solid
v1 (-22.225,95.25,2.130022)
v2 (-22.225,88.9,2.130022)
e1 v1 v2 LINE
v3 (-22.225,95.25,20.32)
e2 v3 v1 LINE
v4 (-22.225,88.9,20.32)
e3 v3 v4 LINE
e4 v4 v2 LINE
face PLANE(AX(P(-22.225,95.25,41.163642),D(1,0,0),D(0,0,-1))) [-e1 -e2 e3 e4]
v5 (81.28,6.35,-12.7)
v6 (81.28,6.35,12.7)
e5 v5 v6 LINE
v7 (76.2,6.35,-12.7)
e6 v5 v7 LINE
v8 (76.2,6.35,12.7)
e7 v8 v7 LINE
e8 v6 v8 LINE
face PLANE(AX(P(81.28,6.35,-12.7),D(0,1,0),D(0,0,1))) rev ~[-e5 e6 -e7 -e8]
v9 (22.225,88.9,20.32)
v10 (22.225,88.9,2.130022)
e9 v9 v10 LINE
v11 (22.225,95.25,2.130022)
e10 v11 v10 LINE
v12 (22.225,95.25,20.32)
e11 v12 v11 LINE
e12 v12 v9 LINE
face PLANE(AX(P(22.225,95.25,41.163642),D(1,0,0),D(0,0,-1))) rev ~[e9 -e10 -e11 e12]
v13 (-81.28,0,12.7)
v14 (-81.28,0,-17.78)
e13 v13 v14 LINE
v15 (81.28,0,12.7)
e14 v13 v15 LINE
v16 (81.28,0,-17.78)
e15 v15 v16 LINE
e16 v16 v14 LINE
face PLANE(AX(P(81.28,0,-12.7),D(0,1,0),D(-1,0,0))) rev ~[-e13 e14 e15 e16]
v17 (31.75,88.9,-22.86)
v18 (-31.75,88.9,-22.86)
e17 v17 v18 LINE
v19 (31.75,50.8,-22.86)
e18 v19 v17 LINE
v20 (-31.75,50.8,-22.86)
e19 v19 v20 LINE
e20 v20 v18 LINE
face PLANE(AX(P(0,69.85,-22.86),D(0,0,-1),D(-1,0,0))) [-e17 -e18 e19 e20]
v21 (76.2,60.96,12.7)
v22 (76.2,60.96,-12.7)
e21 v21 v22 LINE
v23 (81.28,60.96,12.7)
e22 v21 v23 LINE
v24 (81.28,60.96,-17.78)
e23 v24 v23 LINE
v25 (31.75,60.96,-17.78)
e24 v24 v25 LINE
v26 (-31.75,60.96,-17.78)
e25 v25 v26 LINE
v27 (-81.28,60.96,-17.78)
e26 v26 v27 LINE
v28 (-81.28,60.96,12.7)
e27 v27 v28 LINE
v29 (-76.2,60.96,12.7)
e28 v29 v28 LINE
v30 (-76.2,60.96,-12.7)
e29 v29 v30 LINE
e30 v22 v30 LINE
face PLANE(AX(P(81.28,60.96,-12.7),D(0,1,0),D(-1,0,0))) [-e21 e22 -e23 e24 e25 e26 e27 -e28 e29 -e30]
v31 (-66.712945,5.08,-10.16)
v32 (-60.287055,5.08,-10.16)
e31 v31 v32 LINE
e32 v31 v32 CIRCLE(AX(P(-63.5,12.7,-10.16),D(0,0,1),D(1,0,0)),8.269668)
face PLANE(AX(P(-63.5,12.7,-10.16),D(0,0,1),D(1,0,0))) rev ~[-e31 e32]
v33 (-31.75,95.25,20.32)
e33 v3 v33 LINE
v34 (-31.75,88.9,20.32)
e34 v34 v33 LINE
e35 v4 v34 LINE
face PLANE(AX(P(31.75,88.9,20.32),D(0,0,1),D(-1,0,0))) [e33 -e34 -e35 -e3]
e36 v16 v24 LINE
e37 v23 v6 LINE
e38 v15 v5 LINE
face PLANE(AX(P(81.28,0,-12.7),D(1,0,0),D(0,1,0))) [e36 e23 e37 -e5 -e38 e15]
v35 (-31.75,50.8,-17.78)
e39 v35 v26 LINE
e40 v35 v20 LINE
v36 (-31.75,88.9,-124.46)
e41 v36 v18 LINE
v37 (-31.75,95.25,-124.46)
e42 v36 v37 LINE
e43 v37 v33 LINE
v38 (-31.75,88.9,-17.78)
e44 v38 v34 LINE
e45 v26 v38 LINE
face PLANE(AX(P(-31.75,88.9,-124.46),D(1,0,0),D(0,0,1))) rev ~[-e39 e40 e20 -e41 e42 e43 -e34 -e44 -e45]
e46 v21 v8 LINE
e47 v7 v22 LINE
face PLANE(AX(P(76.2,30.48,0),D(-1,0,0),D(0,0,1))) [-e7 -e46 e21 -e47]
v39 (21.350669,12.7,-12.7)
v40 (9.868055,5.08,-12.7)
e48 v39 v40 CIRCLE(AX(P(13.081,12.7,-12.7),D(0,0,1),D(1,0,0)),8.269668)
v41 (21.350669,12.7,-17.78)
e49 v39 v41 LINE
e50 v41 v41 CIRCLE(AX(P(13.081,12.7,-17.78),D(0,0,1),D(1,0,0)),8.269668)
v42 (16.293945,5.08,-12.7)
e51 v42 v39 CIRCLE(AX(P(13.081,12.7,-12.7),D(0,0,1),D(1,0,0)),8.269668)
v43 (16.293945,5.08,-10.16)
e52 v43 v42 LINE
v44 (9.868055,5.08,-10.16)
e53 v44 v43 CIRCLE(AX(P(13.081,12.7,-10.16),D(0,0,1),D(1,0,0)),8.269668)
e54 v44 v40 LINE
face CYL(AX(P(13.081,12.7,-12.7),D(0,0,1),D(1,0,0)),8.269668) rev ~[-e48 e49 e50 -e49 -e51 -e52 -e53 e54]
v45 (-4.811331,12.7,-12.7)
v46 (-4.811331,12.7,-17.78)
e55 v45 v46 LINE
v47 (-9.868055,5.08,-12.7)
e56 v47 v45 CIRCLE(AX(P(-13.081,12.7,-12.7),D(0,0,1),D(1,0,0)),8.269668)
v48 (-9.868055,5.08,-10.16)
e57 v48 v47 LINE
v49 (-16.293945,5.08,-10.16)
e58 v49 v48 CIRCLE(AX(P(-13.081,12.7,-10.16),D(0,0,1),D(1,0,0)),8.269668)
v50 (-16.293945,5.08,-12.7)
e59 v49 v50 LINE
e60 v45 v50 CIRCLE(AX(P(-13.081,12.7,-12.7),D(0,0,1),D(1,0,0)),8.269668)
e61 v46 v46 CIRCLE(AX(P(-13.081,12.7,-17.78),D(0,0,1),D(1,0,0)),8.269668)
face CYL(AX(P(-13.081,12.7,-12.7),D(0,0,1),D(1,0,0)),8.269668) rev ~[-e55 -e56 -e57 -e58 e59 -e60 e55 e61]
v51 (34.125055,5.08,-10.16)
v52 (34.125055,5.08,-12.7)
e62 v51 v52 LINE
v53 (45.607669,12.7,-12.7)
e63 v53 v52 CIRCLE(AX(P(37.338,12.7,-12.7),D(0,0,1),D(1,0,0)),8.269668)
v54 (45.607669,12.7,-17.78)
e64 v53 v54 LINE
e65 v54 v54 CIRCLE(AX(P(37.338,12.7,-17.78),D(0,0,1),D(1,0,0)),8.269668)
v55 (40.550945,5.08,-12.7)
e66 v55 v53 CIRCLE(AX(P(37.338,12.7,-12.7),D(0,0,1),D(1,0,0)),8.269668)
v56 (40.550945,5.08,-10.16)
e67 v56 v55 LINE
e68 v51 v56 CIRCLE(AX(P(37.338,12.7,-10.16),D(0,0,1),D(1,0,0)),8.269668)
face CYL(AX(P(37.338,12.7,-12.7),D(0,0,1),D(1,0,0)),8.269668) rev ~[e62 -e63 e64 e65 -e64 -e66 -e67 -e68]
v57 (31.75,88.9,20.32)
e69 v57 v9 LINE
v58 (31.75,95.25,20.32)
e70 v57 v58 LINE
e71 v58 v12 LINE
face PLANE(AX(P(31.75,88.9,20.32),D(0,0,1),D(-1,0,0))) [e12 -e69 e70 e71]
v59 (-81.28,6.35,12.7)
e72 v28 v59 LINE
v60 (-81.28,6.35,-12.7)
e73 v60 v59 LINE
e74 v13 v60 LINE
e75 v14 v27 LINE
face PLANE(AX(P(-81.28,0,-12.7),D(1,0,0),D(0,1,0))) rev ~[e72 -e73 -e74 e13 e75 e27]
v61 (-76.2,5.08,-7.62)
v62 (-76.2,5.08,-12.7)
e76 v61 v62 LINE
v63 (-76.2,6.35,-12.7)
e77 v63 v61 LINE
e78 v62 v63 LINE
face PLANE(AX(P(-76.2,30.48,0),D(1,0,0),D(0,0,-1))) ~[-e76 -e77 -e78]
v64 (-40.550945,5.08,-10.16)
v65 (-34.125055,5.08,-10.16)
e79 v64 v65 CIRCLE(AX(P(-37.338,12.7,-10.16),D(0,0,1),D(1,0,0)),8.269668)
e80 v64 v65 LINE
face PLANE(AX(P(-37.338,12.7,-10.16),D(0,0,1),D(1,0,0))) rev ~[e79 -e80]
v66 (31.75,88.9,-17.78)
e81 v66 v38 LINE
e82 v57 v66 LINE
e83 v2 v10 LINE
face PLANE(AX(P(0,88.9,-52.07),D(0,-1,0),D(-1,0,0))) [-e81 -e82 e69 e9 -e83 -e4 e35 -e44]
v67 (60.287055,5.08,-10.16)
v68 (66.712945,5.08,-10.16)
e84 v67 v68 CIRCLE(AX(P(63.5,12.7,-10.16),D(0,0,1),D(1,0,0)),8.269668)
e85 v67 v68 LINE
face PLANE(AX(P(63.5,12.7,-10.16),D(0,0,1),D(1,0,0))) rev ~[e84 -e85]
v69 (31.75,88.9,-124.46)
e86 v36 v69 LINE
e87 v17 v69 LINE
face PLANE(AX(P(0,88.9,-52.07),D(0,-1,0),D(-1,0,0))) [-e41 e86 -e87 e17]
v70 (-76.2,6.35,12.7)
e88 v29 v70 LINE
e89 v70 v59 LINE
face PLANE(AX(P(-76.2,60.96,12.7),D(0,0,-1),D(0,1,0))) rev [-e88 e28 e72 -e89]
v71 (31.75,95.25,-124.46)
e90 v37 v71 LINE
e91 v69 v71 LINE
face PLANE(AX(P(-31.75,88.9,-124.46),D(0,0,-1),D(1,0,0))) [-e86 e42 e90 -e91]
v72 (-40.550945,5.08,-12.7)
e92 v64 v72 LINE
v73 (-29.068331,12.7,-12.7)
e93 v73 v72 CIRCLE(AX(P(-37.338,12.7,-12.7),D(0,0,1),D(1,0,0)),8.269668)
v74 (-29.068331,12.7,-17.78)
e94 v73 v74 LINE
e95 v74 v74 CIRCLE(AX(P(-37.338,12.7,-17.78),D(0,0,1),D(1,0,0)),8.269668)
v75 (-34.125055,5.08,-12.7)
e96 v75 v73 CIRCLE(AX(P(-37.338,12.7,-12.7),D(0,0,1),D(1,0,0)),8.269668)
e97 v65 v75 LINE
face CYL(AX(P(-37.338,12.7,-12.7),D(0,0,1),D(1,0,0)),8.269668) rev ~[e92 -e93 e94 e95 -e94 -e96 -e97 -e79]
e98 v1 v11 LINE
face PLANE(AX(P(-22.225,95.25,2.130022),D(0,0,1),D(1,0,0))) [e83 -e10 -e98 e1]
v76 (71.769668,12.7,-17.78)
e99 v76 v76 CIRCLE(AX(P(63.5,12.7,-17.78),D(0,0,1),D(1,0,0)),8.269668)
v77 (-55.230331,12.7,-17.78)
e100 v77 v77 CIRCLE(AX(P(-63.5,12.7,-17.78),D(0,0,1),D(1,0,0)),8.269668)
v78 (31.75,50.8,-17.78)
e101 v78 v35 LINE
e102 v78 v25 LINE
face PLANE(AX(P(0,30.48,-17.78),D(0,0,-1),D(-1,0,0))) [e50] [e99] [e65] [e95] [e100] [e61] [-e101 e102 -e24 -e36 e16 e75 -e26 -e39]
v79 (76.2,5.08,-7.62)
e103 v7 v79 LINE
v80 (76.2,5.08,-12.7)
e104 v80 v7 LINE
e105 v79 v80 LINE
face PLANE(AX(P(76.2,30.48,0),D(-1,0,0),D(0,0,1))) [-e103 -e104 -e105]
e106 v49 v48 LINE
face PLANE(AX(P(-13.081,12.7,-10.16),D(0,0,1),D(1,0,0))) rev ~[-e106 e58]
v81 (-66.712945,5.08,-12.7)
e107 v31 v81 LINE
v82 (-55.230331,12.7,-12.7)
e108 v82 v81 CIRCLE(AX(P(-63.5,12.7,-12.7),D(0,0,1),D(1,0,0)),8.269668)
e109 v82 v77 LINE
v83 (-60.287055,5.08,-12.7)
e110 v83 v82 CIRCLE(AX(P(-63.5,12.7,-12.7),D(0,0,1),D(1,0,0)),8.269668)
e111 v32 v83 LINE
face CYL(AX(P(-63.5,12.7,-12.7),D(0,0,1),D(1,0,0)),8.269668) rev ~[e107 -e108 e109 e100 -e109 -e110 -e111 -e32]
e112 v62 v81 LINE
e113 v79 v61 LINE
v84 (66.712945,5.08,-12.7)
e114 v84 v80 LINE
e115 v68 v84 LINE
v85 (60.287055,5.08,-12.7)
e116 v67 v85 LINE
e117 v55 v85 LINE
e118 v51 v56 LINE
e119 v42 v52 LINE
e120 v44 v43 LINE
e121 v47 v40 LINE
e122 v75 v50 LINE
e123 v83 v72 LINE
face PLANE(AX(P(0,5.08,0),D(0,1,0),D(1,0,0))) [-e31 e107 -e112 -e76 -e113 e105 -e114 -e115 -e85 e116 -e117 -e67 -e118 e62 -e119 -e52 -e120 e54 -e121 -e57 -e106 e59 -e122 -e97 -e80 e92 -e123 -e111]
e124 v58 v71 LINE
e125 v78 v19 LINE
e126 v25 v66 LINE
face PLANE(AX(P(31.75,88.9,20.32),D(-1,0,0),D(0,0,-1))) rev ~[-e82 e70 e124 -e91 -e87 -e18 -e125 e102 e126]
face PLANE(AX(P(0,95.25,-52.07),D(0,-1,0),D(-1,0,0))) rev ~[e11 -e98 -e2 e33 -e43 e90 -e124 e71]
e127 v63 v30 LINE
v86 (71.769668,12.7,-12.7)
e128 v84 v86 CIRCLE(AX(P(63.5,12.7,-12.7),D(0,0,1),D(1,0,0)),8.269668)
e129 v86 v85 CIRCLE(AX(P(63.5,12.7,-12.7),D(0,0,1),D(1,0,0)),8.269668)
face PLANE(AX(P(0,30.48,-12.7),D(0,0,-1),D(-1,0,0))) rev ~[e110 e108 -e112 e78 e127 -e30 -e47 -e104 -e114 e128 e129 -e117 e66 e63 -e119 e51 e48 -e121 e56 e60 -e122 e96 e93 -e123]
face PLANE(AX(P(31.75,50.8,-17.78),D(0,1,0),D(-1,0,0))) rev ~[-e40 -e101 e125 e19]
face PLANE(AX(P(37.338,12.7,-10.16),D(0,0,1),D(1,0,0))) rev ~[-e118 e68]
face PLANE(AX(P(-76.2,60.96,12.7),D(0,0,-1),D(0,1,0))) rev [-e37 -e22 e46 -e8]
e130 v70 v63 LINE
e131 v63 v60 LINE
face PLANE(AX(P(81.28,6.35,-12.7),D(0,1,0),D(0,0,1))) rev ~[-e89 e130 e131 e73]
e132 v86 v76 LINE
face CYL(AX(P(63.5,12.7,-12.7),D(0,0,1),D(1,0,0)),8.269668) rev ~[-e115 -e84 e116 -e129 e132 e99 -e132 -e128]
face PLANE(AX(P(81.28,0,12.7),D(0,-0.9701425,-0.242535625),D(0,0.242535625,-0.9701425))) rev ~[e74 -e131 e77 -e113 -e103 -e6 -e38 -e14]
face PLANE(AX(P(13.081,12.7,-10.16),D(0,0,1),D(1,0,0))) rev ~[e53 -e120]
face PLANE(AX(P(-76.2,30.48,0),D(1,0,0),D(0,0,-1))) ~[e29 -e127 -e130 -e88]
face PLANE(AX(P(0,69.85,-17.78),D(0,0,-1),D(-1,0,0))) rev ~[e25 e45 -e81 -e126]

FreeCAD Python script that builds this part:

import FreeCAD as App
import Part
import Sketcher
Q = App.Units.Quantity

doc = App.newDocument("Part")
body = doc.addObject("PartDesign::Body", "Body")

# Sketch on XZ plane
sketch1 = body.newObject("Sketcher::SketchObject", "Sketch")
sketch1.AttachmentSupport = (doc.getObject("XZ_Plane"), [""])
sketch1.MapMode = "FlatFace"
sketch1.addGeometry([
    Part.LineSegment(App.Vector(-76, -13, 0), App.Vector(-76, 13, 0)),
    Part.LineSegment(App.Vector(-76, 13, 0), App.Vector(76, 13, 0)),
    Part.LineSegment(App.Vector(76, 13, 0), App.Vector(76, -13, 0)),
    Part.LineSegment(App.Vector(76, -13, 0), App.Vector(-76, -13, 0)),
], False)
sketch1.addConstraint([
    Sketcher.Constraint("Coincident", 0, 2, 1, 1),
    Sketcher.Constraint("Coincident", 1, 2, 2, 1),
    Sketcher.Constraint("Coincident", 2, 2, 3, 1),
    Sketcher.Constraint("Coincident", 3, 2, 0, 1),
    Sketcher.Constraint("Vertical", 0),
    Sketcher.Constraint("Horizontal", 1),
    Sketcher.Constraint("Vertical", 2),
    Sketcher.Constraint("Horizontal", 3),
    Sketcher.Constraint("Symmetric", 0, 2, 2, 2, -1, 1),
    Sketcher.Constraint("DistanceX", 1, 1, 1, 2, Q("6 in")),
    Sketcher.Constraint("DistanceY", 0, 1, 0, 2, Q("1 in")),
])
pad1 = body.newObject("PartDesign::Pad", "Pad")
pad1.Profile = sketch1
pad1.Length = Q("0.2 in")
pad1.Reversed = True

# Sketch on YZ plane
sketch2 = body.newObject("Sketcher::SketchObject", "Sketch001")
sketch2.AttachmentSupport = (doc.getObject("YZ_Plane"), [""])
sketch2.MapMode = "FlatFace"
sketch2.AttachmentOffset = App.Placement(App.Vector(0, 0, 3 * 25.4), App.Rotation())
sketch2.addGeometry([
    Part.LineSegment(App.Vector(61, 13, 0), App.Vector(0, 13, 0)),
    Part.LineSegment(App.Vector(0, 13, 0), App.Vector(0, -13, 0)),
    Part.LineSegment(App.Vector(0, -13, 0), App.Vector(61, -13, 0)),
    Part.LineSegment(App.Vector(61, -13, 0), App.Vector(61, 13, 0)),
], False)
sketch2.addConstraint([
    Sketcher.Constraint("Coincident", 0, 2, 1, 1),
    Sketcher.Constraint("Coincident", 1, 2, 2, 1),
    Sketcher.Constraint("Coincident", 2, 2, 3, 1),
    Sketcher.Constraint("Coincident", 3, 2, 0, 1),
    Sketcher.Constraint("Horizontal", 0),
    Sketcher.Constraint("Vertical", 1),
    Sketcher.Constraint("Horizontal", 2),
    Sketcher.Constraint("Vertical", 3),
    Sketcher.Constraint("Symmetric", 0, 2, 1, 2, -1, 1),
    Sketcher.Constraint("DistanceY", 1, 2, 1, 1, Q("1 in")),
    Sketcher.Constraint("DistanceX", 0, 2, 0, 1, Q("2.4 in")),
])
pad2 = body.newObject("PartDesign::Pad", "Pad001")
pad2.Profile = sketch2
pad2.Length = Q("0.2 in")
doc.recompute()

mirrored = body.newObject("PartDesign::Mirrored", "Mirrored")
mirrored.Originals = [pad2]
mirrored.MirrorPlane = (doc.getObject("YZ_Plane"), [""])
body.Tip = mirrored

# Sketch on XY plane
sketch3 = body.newObject("Sketcher::SketchObject", "Sketch002")
sketch3.AttachmentSupport = (doc.getObject("XY_Plane"), [""])
sketch3.MapMode = "FlatFace"
sketch3.AttachmentOffset = App.Placement(App.Vector(0, 0, -0.5 * 25.4), App.Rotation())
sketch3.addGeometry([
    Part.LineSegment(App.Vector(81, 61, 0), App.Vector(81, 0, 0)),
    Part.LineSegment(App.Vector(81, 0, 0), App.Vector(-81, 0, 0)),
    Part.LineSegment(App.Vector(-81, 0, 0), App.Vector(-81, 61, 0)),
    Part.LineSegment(App.Vector(-81, 61, 0), App.Vector(81, 61, 0)),
], False)
sketch3.addConstraint([
    Sketcher.Constraint("Coincident", 0, 2, 1, 1),
    Sketcher.Constraint("Coincident", 1, 2, 2, 1),
    Sketcher.Constraint("Coincident", 2, 2, 3, 1),
    Sketcher.Constraint("Coincident", 3, 2, 0, 1),
    Sketcher.Constraint("Vertical", 0),
    Sketcher.Constraint("Horizontal", 1),
    Sketcher.Constraint("Vertical", 2),
    Sketcher.Constraint("Horizontal", 3),
    Sketcher.Constraint("Symmetric", 0, 2, 1, 2, -1, 1),
    Sketcher.Constraint("DistanceX", 1, 2, 1, 1, Q("6.4 in")),
    Sketcher.Constraint("DistanceY", 0, 2, 0, 1, Q("2.4 in")),
])
pad3 = body.newObject("PartDesign::Pad", "Pad002")
pad3.Profile = sketch3
pad3.Length = Q("0.2 in")
pad3.Reversed = True

# Sketch on YZ plane
sketch4 = body.newObject("Sketcher::SketchObject", "Sketch003")
sketch4.AttachmentSupport = (doc.getObject("YZ_Plane"), [""])
sketch4.MapMode = "FlatFace"
sketch4.AttachmentOffset = App.Placement(App.Vector(0, 0, 3.2 * 25.4), App.Rotation())
sketch4.addGeometry([
    Part.LineSegment(App.Vector(0, 13, 0), App.Vector(6, -13, 0)),
    Part.LineSegment(App.Vector(6, -13, 0), App.Vector(6, 13, 0)),
    Part.LineSegment(App.Vector(6, 13, 0), App.Vector(0, 13, 0)),
], False)
sketch4.addConstraint([
    Sketcher.Constraint("Coincident", 0, 2, 1, 1),
    Sketcher.Constraint("Coincident", 1, 2, 2, 1),
    Sketcher.Constraint("Coincident", 2, 2, 0, 1),
    Sketcher.Constraint("Vertical", 1),
    Sketcher.Constraint("Horizontal", 2),
    Sketcher.Constraint("PointOnObject", 2, 2, -2),
    Sketcher.Constraint("DistanceY", 1, 1, 1, 2, Q("1 in")),
    Sketcher.Constraint("DistanceX", 2, 2, 2, 1, Q("0.25 in")),
    Sketcher.Constraint("DistanceY", 0, 2, -1, 1, Q("0.5 in")),
])
pocket1 = body.newObject("PartDesign::Pocket", "Pocket")
pocket1.Profile = sketch4
pocket1.Type = "ThroughAll"

# Sketch on XY plane
sketch5 = body.newObject("Sketcher::SketchObject", "Sketch004")
sketch5.AttachmentSupport = (doc.getObject("XY_Plane"), [""])
sketch5.MapMode = "FlatFace"
sketch5.AttachmentOffset = App.Placement(App.Vector(0, 0, -0.7 * 25.4), App.Rotation())
sketch5.addGeometry([
    Part.LineSegment(App.Vector(32, 89, 0), App.Vector(32, 51, 0)),
    Part.LineSegment(App.Vector(32, 51, 0), App.Vector(-32, 51, 0)),
    Part.LineSegment(App.Vector(-32, 51, 0), App.Vector(-32, 89, 0)),
    Part.LineSegment(App.Vector(-32, 89, 0), App.Vector(32, 89, 0)),
], False)
sketch5.addConstraint([
    Sketcher.Constraint("Coincident", 0, 2, 1, 1),
    Sketcher.Constraint("Coincident", 1, 2, 2, 1),
    Sketcher.Constraint("Coincident", 2, 2, 3, 1),
    Sketcher.Constraint("Coincident", 3, 2, 0, 1),
    Sketcher.Constraint("Vertical", 0),
    Sketcher.Constraint("Horizontal", 1),
    Sketcher.Constraint("Vertical", 2),
    Sketcher.Constraint("Horizontal", 3),
    Sketcher.Constraint("DistanceX", 1, 2, 1, 1, Q("2.5 in")),
    Sketcher.Constraint("DistanceY", 0, 2, 0, 1, Q("1.5 in")),
    Sketcher.Constraint("DistanceY", -1, 1, 0, 2, Q("2 in")),
    Sketcher.Constraint("DistanceX", -1, 1, 0, 2, Q("1.25 in")),
])
pad4 = body.newObject("PartDesign::Pad", "Pad003")
pad4.Profile = sketch5
pad4.Length = Q("0.2 in")
pad4.Reversed = True

# Sketch on XZ plane
sketch6 = body.newObject("Sketcher::SketchObject", "Sketch005")
sketch6.AttachmentSupport = (doc.getObject("XZ_Plane"), [""])
sketch6.MapMode = "FlatFace"
sketch6.AttachmentOffset = App.Placement(App.Vector(0, 0, -3.5 * 25.4), App.Rotation())
sketch6.addGeometry([
    Part.LineSegment(App.Vector(-32, -124, 0), App.Vector(-32, 20, 0)),
    Part.LineSegment(App.Vector(-32, 20, 0), App.Vector(32, 20, 0)),
    Part.LineSegment(App.Vector(32, 20, 0), App.Vector(32, -124, 0)),
    Part.LineSegment(App.Vector(32, -124, 0), App.Vector(-32, -124, 0)),
], False)
sketch6.addConstraint([
    Sketcher.Constraint("Coincident", 0, 2, 1, 1),
    Sketcher.Constraint("Coincident", 1, 2, 2, 1),
    Sketcher.Constraint("Coincident", 2, 2, 3, 1),
    Sketcher.Constraint("Coincident", 3, 2, 0, 1),
    Sketcher.Constraint("Vertical", 0),
    Sketcher.Constraint("Horizontal", 1),
    Sketcher.Constraint("Vertical", 2),
    Sketcher.Constraint("Horizontal", 3),
    Sketcher.Constraint("DistanceX", 1, 1, 1, 2, Q("2.5 in")),
    Sketcher.Constraint("DistanceY", 0, 1, 0, 2, Q("5.7 in")),
    Sketcher.Constraint("DistanceY", -1, 1, 0, 2, Q("0.8 in")),
    Sketcher.Constraint("DistanceX", 0, 2, -1, 1, Q("1.25 in")),
])
pad5 = body.newObject("PartDesign::Pad", "Pad004")
pad5.Profile = sketch6
pad5.Length = Q("0.25 in")
pad5.Reversed = True

# Sketch on XZ plane
sketch7 = body.newObject("Sketcher::SketchObject", "Sketch006")
sketch7.AttachmentSupport = (doc.getObject("XZ_Plane"), [""])
sketch7.MapMode = "FlatFace"
sketch7.AttachmentOffset = App.Placement(App.Vector(0, 0, -3.75 * 25.4), App.Rotation())
sketch7.addGeometry([
    Part.LineSegment(App.Vector(-22, 2, 0), App.Vector(-22, 41, 0)),
    Part.LineSegment(App.Vector(-22, 41, 0), App.Vector(22, 41, 0)),
    Part.LineSegment(App.Vector(22, 41, 0), App.Vector(22, 2, 0)),
    Part.LineSegment(App.Vector(22, 2, 0), App.Vector(-22, 2, 0)),
], False)
sketch7.addConstraint([
    Sketcher.Constraint("Coincident", 0, 2, 1, 1),
    Sketcher.Constraint("Coincident", 1, 2, 2, 1),
    Sketcher.Constraint("Coincident", 2, 2, 3, 1),
    Sketcher.Constraint("Coincident", 3, 2, 0, 1),
    Sketcher.Constraint("Vertical", 0),
    Sketcher.Constraint("Horizontal", 1),
    Sketcher.Constraint("Vertical", 2),
    Sketcher.Constraint("Horizontal", 3),
    Sketcher.Constraint("DistanceX", 1, 1, 1, 2, Q("1.75 in")),
    Sketcher.Constraint("DistanceX", 0, 2, -1, 1, Q("0.875 in")),
    Sketcher.Constraint("DistanceY", 0, 1, 0, 2, Q("39.03362 mm")),
    Sketcher.Constraint("DistanceY", -1, 1, 0, 2, Q("41.163642 mm")),
])
pocket2 = body.newObject("PartDesign::Pocket", "Pocket001")
pocket2.Profile = sketch7
pocket2.Length = Q("0.25 in")
pocket2.Reversed = True

# Sketch on XY plane
sketch8 = body.newObject("Sketcher::SketchObject", "Sketch007")
sketch8.AttachmentSupport = (doc.getObject("XY_Plane"), [""])
sketch8.MapMode = "FlatFace"
sketch8.AttachmentOffset = App.Placement(App.Vector(0, 0, -0.5 * 25.4), App.Rotation())
sketch8.addGeometry([
    Part.Circle(App.Vector(-13, 13, 0), App.Vector(0, 0, 1), 8),  # 0
    Part.Circle(App.Vector(13, 13, 0), App.Vector(0, 0, 1), 8),  # 1
    Part.Circle(App.Vector(37, 13, 0), App.Vector(0, 0, 1), 8),  # 2
    Part.Circle(App.Vector(64, 13, 0), App.Vector(0, 0, 1), 8),  # 3
    Part.Circle(App.Vector(-64, 13, 0), App.Vector(0, 0, 1), 8),  # 4
    Part.Circle(App.Vector(-37, 13, 0), App.Vector(0, 0, 1), 8),  # 5
], False)
sketch8.addConstraint([
    Sketcher.Constraint("Equal", 0, 1),
    Sketcher.Constraint("Equal", 1, 2),
    Sketcher.Constraint("Equal", 2, 3),
    Sketcher.Constraint("Equal", 3, 4),
    Sketcher.Constraint("Equal", 4, 5),
    Sketcher.Constraint("Symmetric", 0, 3, 1, 3, -2),
    Sketcher.Constraint("Symmetric", 3, 3, 4, 3, -2),
    Sketcher.Constraint("Symmetric", 2, 3, 5, 3, -2),
    Sketcher.Constraint("Horizontal", 1, 3, 2, 3),
    Sketcher.Constraint("Horizontal", 2, 3, 3, 3),
    Sketcher.Constraint("DistanceX", 4, 3, 3, 3, Q("5 in")),
    Sketcher.Constraint("DistanceY", -1, 1, 0, 3, Q("0.5 in")),
    Sketcher.Constraint("DistanceX", -1, 1, 2, 3, Q("1.47 in")),
    Sketcher.Constraint("DistanceX", 0, 3, 1, 3, Q("1.03 in")),
    Sketcher.Constraint("Diameter", 0, Q("16.539337 mm")),
])
pocket3 = body.newObject("PartDesign::Pocket", "Pocket002")
pocket3.Profile = sketch8
pocket3.Type = "TwoLengths"
pocket3.Length = Q("0.1 in")
pocket3.Length2 = 112.76
pocket3.Reversed = True

doc.recompute()
